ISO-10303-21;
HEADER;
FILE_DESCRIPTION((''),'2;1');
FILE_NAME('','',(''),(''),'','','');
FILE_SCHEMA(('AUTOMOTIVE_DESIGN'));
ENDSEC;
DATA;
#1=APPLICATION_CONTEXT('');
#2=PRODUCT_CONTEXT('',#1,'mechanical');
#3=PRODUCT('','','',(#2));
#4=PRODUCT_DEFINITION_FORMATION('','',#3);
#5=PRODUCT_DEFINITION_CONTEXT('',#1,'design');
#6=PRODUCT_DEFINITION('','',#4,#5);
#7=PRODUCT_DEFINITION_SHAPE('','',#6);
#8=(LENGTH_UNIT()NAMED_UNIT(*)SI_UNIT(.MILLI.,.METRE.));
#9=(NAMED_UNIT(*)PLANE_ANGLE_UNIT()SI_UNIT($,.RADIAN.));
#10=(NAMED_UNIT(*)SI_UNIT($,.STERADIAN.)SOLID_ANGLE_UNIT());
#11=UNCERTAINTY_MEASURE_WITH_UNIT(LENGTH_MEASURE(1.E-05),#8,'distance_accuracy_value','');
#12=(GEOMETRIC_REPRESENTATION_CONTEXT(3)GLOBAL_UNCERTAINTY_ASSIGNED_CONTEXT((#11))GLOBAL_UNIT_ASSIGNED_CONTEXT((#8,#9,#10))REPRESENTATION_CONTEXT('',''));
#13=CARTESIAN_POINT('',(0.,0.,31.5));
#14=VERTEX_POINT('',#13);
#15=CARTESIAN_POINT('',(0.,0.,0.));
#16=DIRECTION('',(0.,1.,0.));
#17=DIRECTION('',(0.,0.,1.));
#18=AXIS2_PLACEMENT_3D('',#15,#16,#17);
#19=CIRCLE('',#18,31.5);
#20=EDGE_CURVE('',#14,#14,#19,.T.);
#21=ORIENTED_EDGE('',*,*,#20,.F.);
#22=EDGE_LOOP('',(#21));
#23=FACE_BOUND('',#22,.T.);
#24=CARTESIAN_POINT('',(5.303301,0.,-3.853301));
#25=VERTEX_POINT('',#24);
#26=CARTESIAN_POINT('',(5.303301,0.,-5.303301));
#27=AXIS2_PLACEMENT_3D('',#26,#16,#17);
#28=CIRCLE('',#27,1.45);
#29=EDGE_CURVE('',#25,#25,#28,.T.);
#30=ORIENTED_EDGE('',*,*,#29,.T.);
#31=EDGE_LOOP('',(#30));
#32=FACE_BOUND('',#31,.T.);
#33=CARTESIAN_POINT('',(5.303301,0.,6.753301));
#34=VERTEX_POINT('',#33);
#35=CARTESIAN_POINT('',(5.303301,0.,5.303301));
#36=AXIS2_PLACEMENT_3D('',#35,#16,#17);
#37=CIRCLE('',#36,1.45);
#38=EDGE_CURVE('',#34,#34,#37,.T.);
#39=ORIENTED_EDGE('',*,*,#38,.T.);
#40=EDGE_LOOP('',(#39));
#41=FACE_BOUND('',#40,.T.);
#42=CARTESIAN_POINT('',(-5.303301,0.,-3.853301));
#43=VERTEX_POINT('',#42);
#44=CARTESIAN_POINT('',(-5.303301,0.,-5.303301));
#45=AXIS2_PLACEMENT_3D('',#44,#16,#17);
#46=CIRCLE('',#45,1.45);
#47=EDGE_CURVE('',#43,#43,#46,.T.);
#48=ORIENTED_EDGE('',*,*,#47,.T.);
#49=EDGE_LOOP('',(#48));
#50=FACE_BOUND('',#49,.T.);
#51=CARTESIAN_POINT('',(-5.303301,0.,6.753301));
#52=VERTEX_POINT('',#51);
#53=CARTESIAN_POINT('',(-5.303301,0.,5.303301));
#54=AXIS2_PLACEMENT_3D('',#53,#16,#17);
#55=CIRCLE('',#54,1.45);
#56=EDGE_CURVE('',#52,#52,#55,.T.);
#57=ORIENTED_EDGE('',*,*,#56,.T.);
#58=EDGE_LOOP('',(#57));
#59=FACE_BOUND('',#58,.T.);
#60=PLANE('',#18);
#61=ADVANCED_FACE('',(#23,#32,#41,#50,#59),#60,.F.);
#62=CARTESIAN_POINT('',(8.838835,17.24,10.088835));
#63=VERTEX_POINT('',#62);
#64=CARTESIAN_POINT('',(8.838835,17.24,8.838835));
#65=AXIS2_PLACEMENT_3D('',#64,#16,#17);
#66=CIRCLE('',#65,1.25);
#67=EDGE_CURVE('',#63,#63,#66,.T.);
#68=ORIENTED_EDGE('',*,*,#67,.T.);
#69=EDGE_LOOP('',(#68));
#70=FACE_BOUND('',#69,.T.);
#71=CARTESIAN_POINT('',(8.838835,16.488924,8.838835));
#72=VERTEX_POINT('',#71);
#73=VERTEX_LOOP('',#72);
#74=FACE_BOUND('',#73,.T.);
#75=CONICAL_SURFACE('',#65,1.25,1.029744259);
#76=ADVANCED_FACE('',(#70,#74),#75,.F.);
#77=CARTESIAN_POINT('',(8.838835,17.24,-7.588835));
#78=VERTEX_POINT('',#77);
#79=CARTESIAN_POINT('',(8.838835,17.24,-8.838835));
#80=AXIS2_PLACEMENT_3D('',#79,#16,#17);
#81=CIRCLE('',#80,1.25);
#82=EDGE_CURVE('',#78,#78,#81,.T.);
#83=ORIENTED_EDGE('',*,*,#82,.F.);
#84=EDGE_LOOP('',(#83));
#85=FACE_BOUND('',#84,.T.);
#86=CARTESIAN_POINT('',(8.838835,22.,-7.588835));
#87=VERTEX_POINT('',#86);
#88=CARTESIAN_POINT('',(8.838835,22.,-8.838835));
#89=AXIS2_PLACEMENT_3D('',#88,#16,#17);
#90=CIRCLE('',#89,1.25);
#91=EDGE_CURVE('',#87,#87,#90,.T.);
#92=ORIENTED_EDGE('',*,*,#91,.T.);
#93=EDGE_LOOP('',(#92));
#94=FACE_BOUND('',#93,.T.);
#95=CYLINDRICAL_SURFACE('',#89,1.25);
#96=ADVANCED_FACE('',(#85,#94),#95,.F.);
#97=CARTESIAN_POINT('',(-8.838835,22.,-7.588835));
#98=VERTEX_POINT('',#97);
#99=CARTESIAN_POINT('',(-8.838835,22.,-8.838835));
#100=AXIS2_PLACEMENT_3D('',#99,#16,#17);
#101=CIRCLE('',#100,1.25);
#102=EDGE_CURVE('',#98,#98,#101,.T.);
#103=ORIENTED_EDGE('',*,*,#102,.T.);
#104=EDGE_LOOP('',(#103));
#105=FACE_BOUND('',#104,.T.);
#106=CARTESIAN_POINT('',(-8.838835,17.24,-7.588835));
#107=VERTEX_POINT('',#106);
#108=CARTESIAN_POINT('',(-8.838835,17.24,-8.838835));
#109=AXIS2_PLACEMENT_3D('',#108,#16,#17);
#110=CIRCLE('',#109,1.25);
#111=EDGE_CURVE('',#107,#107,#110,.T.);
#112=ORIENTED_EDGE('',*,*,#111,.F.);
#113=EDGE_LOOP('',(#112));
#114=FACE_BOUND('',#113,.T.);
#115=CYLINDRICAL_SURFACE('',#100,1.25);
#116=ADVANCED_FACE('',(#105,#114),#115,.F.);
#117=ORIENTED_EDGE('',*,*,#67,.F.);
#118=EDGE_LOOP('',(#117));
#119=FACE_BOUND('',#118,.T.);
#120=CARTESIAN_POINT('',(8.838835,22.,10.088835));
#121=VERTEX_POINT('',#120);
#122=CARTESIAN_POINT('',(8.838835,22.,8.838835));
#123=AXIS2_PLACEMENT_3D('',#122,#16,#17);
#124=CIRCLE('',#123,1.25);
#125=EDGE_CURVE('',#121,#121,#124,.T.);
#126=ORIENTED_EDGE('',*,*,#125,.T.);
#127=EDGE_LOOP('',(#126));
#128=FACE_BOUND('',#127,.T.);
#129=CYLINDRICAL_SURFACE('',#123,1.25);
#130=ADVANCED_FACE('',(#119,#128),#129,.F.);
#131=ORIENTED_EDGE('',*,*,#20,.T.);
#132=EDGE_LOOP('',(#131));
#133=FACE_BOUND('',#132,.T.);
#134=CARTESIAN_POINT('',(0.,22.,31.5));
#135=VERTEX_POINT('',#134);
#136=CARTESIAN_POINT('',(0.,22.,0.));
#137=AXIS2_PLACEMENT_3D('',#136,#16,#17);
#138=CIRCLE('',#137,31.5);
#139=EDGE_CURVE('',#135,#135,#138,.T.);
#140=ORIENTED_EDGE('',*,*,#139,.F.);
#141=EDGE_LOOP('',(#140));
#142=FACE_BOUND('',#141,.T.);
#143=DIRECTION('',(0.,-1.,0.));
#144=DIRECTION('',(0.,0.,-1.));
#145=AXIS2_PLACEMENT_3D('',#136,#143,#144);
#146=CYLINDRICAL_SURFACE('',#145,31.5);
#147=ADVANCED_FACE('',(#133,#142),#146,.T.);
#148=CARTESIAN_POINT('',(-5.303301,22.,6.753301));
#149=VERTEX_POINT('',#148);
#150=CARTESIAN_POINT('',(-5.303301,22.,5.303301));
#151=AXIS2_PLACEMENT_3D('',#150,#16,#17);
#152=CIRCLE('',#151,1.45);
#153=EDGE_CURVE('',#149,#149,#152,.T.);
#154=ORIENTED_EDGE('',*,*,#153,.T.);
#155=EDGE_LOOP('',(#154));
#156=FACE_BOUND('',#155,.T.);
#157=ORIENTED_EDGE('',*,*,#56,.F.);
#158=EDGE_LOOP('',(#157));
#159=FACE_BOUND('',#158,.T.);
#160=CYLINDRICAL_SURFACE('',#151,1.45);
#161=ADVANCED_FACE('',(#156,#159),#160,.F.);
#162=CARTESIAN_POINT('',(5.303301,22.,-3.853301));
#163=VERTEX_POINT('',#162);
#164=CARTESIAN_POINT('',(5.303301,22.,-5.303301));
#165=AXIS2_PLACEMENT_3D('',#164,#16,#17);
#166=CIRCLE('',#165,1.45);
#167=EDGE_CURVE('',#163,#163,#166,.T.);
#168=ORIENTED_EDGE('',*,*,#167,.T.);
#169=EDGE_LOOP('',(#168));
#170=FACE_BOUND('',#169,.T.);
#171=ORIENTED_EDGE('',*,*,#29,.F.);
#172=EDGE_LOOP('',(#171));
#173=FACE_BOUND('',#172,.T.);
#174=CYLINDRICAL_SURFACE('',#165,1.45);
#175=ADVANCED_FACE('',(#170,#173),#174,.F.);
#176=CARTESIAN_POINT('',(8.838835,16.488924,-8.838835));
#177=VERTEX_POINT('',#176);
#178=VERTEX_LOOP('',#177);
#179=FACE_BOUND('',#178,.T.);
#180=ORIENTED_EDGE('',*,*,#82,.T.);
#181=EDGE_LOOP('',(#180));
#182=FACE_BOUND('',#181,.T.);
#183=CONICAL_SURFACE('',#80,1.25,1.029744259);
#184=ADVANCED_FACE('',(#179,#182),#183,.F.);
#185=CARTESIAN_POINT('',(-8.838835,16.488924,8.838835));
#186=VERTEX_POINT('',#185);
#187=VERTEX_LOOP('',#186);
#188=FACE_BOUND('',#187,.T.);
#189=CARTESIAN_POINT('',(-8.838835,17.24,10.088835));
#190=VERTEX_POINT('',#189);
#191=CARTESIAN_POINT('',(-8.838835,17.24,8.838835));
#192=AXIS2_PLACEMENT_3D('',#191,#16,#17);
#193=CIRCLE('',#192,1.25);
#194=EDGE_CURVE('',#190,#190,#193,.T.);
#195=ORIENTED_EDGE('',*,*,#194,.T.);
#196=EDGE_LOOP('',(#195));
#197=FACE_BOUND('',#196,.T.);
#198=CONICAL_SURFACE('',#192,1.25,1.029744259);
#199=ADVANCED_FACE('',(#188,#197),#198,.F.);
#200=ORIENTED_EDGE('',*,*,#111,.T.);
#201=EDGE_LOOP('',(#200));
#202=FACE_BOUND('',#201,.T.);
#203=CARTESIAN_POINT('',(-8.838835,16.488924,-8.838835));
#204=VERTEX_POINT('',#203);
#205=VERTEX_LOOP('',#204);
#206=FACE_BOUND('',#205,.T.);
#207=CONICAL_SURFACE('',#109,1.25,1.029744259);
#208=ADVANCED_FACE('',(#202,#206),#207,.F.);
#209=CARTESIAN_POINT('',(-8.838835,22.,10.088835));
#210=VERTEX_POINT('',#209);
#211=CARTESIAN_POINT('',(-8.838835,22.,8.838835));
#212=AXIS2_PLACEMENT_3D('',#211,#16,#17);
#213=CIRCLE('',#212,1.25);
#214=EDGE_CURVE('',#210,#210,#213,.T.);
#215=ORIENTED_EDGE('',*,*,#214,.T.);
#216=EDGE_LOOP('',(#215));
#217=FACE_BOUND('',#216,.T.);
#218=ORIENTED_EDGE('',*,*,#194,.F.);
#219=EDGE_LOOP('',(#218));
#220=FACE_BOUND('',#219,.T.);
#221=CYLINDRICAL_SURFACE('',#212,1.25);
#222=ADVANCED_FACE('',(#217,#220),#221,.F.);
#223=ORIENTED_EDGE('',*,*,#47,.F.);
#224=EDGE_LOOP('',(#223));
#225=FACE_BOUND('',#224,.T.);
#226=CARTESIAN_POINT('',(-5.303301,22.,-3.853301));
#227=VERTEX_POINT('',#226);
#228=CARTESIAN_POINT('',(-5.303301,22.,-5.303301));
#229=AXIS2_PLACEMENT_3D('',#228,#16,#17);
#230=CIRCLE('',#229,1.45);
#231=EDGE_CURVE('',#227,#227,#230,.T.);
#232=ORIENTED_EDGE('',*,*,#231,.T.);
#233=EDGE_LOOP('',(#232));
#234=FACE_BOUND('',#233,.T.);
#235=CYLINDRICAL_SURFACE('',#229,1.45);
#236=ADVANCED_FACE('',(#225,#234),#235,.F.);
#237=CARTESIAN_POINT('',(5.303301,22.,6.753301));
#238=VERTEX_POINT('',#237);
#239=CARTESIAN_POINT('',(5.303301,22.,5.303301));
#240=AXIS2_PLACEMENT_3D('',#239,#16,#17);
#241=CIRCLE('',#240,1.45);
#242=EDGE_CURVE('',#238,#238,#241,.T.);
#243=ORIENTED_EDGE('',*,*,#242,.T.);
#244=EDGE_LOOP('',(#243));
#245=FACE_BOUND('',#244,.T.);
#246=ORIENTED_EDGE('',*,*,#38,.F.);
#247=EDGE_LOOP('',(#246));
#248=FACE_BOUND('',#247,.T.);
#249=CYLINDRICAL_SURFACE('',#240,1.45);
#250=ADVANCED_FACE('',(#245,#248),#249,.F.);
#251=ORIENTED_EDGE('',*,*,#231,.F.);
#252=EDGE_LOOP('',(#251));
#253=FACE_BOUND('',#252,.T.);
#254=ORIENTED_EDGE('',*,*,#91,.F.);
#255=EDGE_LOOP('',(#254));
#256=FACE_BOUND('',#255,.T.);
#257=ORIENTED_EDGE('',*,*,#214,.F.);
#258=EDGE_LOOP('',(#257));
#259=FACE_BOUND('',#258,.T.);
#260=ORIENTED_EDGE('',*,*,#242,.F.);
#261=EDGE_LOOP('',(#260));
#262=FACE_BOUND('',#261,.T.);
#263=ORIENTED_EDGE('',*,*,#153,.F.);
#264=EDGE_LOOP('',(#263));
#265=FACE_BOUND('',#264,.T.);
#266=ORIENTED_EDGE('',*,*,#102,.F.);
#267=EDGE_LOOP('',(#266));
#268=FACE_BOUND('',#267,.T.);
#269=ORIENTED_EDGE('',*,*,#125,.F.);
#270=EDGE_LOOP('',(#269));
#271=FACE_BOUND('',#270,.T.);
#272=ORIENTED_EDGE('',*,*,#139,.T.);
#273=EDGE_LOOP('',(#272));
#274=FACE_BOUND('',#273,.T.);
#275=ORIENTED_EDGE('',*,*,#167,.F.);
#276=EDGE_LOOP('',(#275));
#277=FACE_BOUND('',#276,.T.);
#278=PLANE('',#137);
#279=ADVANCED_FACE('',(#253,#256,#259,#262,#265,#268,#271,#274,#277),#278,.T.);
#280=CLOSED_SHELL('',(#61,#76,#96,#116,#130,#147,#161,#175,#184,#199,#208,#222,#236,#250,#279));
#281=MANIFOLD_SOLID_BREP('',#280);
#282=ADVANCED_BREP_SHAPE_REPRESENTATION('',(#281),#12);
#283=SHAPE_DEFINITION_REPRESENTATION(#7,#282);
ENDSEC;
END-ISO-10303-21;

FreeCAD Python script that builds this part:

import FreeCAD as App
import Part
import Sketcher
from FreeCAD import Vector

doc = App.newDocument("Part")
body = doc.addObject("PartDesign::Body", "Body")

sketch1 = body.newObject("Sketcher::SketchObject", "Sketch")
sketch1.AttachmentSupport = (doc.getObject("XZ_Plane"), [""])
sketch1.MapMode = "FlatFace"
sketch1.addGeometry(Part.Circle(Vector(0, 0, 0), Vector(0, 0, 1), 32), False)
sketch1.addConstraint(Sketcher.Constraint("Coincident", 0, 3, -1, 1))
sketch1.addConstraint(Sketcher.Constraint("Diameter", 0, 63.0))
pad1 = body.newObject("PartDesign::Pad", "Pad")
pad1.Profile = sketch1
pad1.Length = 22
pad1.Reversed = True

sketch2 = body.newObject("Sketcher::SketchObject", "Sketch001")
sketch2.AttachmentSupport = (doc.getObject("XZ_Plane"), [""])
sketch2.MapMode = "FlatFace"
sketch2.AttachmentOffset = App.Placement(Vector(0, 0, -22), App.Rotation())
sketch2.addGeometry(Part.Circle(Vector(8.8, -8.8, 0), Vector(0, 0, 1), 1.2), False)
sketch2.addGeometry(Part.Circle(Vector(8.8, 8.8, 0), Vector(0, 0, 1), 1.2), False)
sketch2.addGeometry(Part.Circle(Vector(-8.8, 8.8, 0), Vector(0, 0, 1), 1.2), False)
sketch2.addGeometry(Part.Circle(Vector(-8.8, -8.8, 0), Vector(0, 0, 1), 1.2), False)
sketch2.addConstraint(Sketcher.Constraint("Equal", 0, 1))
sketch2.addConstraint(Sketcher.Constraint("Equal", 1, 2))
sketch2.addConstraint(Sketcher.Constraint("Equal", 2, 3))
sketch2.addConstraint(Sketcher.Constraint("Symmetric", 0, 3, 2, 3, -1, 1))
sketch2.addConstraint(Sketcher.Constraint("Symmetric", 1, 3, 3, 3, -1, 1))
sketch2.addConstraint(Sketcher.Constraint("Symmetric", 1, 3, 2, 3, -2))
sketch2.addConstraint(Sketcher.Constraint("Diameter", 0, 2.5))
sketch2.addConstraint(Sketcher.Constraint("DistanceY", 0, 3, 1, 3, 17.67767))
sketch2.addConstraint(Sketcher.Constraint("DistanceX", 2, 3, 1, 3, 17.67767))
doc.recompute()
hole = body.newObject("PartDesign::Hole", "Hole")
hole.Profile = sketch2
hole.ThreadType = "None"
hole.Diameter = 2.5
hole.DepthType = "Dimension"
hole.Depth = 4.76
hole.DrillPoint = "Angled"
hole.DrillPointAngle = 118
hole.Reversed = True

sketch3 = body.newObject("Sketcher::SketchObject", "Sketch002")
sketch3.AttachmentSupport = (doc.getObject("XZ_Plane"), [""])
sketch3.MapMode = "FlatFace"
sketch3.addGeometry(Part.Circle(Vector(-5.3, 5.3, 0), Vector(0, 0, 1), 1), False)
sketch3.addGeometry(Part.Circle(Vector(-5.3, -5.3, 0), Vector(0, 0, 1), 1), False)
sketch3.addGeometry(Part.Circle(Vector(5.3, 5.3, 0), Vector(0, 0, 1), 1), False)
sketch3.addGeometry(Part.Circle(Vector(5.3, -5.3, 0), Vector(0, 0, 1), 1), False)
sketch3.addConstraint(Sketcher.Constraint("Equal", 0, 1))
sketch3.addConstraint(Sketcher.Constraint("Equal", 1, 2))
sketch3.addConstraint(Sketcher.Constraint("Equal", 2, 3))
sketch3.addConstraint(Sketcher.Constraint("Symmetric", 1, 3, 2, 3, -1, 1))
sketch3.addConstraint(Sketcher.Constraint("Symmetric", 0, 3, 3, 3, -1, 1))
sketch3.addConstraint(Sketcher.Constraint("Symmetric", 0, 3, 2, 3, -2))
sketch3.addConstraint(Sketcher.Constraint("Diameter", 0, 2.05))
sketch3.addConstraint(Sketcher.Constraint("DistanceX", 0, 3, -1, 1, 5.303301))
sketch3.addConstraint(Sketcher.Constraint("DistanceY", -1, 1, 0, 3, 5.303301))
doc.recompute()
hole2 = body.newObject("PartDesign::Hole", "Hole001")
hole2.Profile = sketch3
hole2.ThreadType = "None"
hole2.Diameter = 2.05
hole2.DepthType = "Dimension"
hole2.Depth = 3.5
hole2.DrillPoint = "Angled"
hole2.DrillPointAngle = 118

sketch4 = body.newObject("Sketcher::SketchObject", "Sketch003")
sketch4.AttachmentSupport = (doc.getObject("XZ_Plane"), [""])
sketch4.MapMode = "FlatFace"
sketch4.AttachmentOffset = App.Placement(Vector(0, 0, -22), App.Rotation())
sketch4.addGeometry(Part.Circle(Vector(5.3, -5.3, 0), Vector(0, 0, 1), 1.4), False)
sketch4.addGeometry(Part.Circle(Vector(5.3, 5.3, 0), Vector(0, 0, 1), 1.4), False)
sketch4.addGeometry(Part.Circle(Vector(-5.3, 5.3, 0), Vector(0, 0, 1), 1.4), False)
sketch4.addGeometry(Part.Circle(Vector(-5.3, -5.3, 0), Vector(0, 0, 1), 1.4), False)
sketch4.addConstraint(Sketcher.Constraint("Equal", 0, 1))
sketch4.addConstraint(Sketcher.Constraint("Equal", 1, 2))
sketch4.addConstraint(Sketcher.Constraint("Equal", 2, 3))
sketch4.addConstraint(Sketcher.Constraint("Symmetric", 0, 3, 2, 3, -1, 1))
sketch4.addConstraint(Sketcher.Constraint("Symmetric", 1, 3, 3, 3, -1, 1))
sketch4.addConstraint(Sketcher.Constraint("Symmetric", 1, 3, 2, 3, -2))
sketch4.addConstraint(Sketcher.Constraint("Diameter", 0, 2.9))
sketch4.addConstraint(Sketcher.Constraint("DistanceX", -1, 1, 0, 3, 5.303301))
sketch4.addConstraint(Sketcher.Constraint("DistanceY", 0, 3, -1, 1, 5.303301))
doc.recompute()
hole3 = body.newObject("PartDesign::Hole", "Hole002")
hole3.Profile = sketch4
hole3.ThreadType = "None"
hole3.Diameter = 2.9
hole3.DepthType = "ThroughAll"
hole3.Reversed = True

doc.recompute()
